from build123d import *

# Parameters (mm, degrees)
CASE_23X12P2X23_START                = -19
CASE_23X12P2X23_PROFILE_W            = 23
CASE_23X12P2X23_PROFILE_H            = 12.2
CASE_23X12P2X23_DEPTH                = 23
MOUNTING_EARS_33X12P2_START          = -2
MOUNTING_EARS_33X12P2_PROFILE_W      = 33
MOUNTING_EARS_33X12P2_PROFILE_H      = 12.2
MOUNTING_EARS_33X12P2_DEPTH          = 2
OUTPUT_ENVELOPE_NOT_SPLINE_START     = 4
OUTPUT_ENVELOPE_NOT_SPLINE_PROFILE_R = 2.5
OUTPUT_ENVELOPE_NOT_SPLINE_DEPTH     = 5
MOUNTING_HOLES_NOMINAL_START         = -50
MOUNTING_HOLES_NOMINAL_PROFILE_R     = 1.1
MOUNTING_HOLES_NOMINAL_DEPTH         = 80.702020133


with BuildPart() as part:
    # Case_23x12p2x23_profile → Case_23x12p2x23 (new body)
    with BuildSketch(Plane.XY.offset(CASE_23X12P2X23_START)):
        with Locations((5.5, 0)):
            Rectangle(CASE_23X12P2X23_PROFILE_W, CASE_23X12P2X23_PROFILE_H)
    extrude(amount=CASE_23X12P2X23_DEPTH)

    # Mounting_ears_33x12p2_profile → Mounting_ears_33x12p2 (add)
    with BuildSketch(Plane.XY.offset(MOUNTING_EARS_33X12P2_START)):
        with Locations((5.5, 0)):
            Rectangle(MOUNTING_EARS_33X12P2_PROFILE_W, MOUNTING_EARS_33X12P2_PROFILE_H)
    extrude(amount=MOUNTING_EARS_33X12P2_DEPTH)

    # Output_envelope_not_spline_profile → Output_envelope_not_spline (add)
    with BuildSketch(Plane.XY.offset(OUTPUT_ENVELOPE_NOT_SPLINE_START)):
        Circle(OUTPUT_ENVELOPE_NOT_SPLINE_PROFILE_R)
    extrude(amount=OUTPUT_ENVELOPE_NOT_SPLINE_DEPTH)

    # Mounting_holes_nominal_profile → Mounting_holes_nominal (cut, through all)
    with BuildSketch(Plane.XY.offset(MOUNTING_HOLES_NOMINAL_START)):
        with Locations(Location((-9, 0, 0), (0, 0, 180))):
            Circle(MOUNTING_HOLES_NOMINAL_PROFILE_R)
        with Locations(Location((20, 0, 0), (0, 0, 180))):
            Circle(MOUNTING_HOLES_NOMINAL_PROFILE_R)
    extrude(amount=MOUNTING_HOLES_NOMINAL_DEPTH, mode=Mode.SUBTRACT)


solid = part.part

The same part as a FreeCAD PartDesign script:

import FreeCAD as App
import Part
import Sketcher

V = App.Vector
Q = App.Units.Quantity

doc = App.newDocument("Part")
body = doc.addObject("PartDesign::Body", "Body")

sketch1 = doc.addObject("Sketcher::SketchObject", "Sketch")
body.addObject(sketch1)
sketch1.AttachmentSupport = (doc.XY_Plane, [""])
sketch1.MapMode = "FlatFace"
sketch1.AttachmentOffset = App.Placement(V(0, 0, -19), App.Rotation())
sketch1.addGeometry(Part.LineSegment(V(-6, 6, 0), V(-6, -6, 0)), False)
sketch1.addGeometry(Part.LineSegment(V(-6, -6, 0), V(17, -6, 0)), False)
sketch1.addGeometry(Part.LineSegment(V(17, -6, 0), V(17, 6, 0)), False)
sketch1.addGeometry(Part.LineSegment(V(17, 6, 0), V(-6, 6, 0)), False)
sketch1.addConstraint(Sketcher.Constraint("Coincident", 0, 2, 1, 1))
sketch1.addConstraint(Sketcher.Constraint("Coincident", 1, 2, 2, 1))
sketch1.addConstraint(Sketcher.Constraint("Coincident", 2, 2, 3, 1))
sketch1.addConstraint(Sketcher.Constraint("Coincident", 3, 2, 0, 1))
sketch1.addConstraint(Sketcher.Constraint("Vertical", 0))
sketch1.addConstraint(Sketcher.Constraint("Horizontal", 1))
sketch1.addConstraint(Sketcher.Constraint("Vertical", 2))
sketch1.addConstraint(Sketcher.Constraint("Horizontal", 3))
sketch1.addConstraint(Sketcher.Constraint("DistanceX", 1, 1, 1, 2, Q("23 mm")))
sketch1.addConstraint(Sketcher.Constraint("DistanceY", 0, 2, 0, 1, Q("12.2 mm")))
sketch1.addConstraint(Sketcher.Constraint("DistanceX", 0, 2, -1, 1, Q("6 mm")))
sketch1.addConstraint(Sketcher.Constraint("DistanceY", 0, 2, -1, 1, Q("6.1 mm")))
pad1 = doc.addObject("PartDesign::Pad", "Pad")
body.addObject(pad1)
pad1.Profile = sketch1
pad1.Length = 23

sketch2 = doc.addObject("Sketcher::SketchObject", "Sketch001")
body.addObject(sketch2)
sketch2.AttachmentSupport = (doc.XY_Plane, [""])
sketch2.MapMode = "FlatFace"
sketch2.AttachmentOffset = App.Placement(V(0, 0, -2), App.Rotation())
sketch2.addGeometry(Part.LineSegment(V(-11, 6, 0), V(-11, -6, 0)), False)
sketch2.addGeometry(Part.LineSegment(V(-11, -6, 0), V(22, -6, 0)), False)
sketch2.addGeometry(Part.LineSegment(V(22, -6, 0), V(22, 6, 0)), False)
sketch2.addGeometry(Part.LineSegment(V(22, 6, 0), V(-11, 6, 0)), False)
sketch2.addConstraint(Sketcher.Constraint("Coincident", 0, 2, 1, 1))
sketch2.addConstraint(Sketcher.Constraint("Coincident", 1, 2, 2, 1))
sketch2.addConstraint(Sketcher.Constraint("Coincident", 2, 2, 3, 1))
sketch2.addConstraint(Sketcher.Constraint("Coincident", 3, 2, 0, 1))
sketch2.addConstraint(Sketcher.Constraint("Vertical", 0))
sketch2.addConstraint(Sketcher.Constraint("Horizontal", 1))
sketch2.addConstraint(Sketcher.Constraint("Vertical", 2))
sketch2.addConstraint(Sketcher.Constraint("Horizontal", 3))
sketch2.addConstraint(Sketcher.Constraint("DistanceX", 1, 1, 1, 2, Q("33 mm")))
sketch2.addConstraint(Sketcher.Constraint("DistanceY", 0, 2, 0, 1, Q("12.2 mm")))
sketch2.addConstraint(Sketcher.Constraint("DistanceX", 0, 2, -1, 1, Q("11 mm")))
sketch2.addConstraint(Sketcher.Constraint("DistanceY", 0, 2, -1, 1, Q("6.1 mm")))
pad2 = doc.addObject("PartDesign::Pad", "Pad001")
body.addObject(pad2)
pad2.Profile = sketch2
pad2.Length = 2

sketch3 = doc.addObject("Sketcher::SketchObject", "Sketch002")
body.addObject(sketch3)
sketch3.AttachmentSupport = (doc.XY_Plane, [""])
sketch3.MapMode = "FlatFace"
sketch3.AttachmentOffset = App.Placement(V(0, 0, 4), App.Rotation())
sketch3.addGeometry(Part.Circle(V(0, 0, 0), V(0, 0, 1), 2.5), False)
sketch3.addConstraint(Sketcher.Constraint("Coincident", 0, 3, -1, 1))
sketch3.addConstraint(Sketcher.Constraint("Diameter", 0, Q("5 mm")))
pad3 = doc.addObject("PartDesign::Pad", "Pad002")
body.addObject(pad3)
pad3.Profile = sketch3
pad3.Length = 5

sketch4 = doc.addObject("Sketcher::SketchObject", "Sketch003")
body.addObject(sketch4)
sketch4.AttachmentSupport = (doc.XY_Plane, [""])
sketch4.MapMode = "FlatFace"
sketch4.AttachmentOffset = App.Placement(V(0, 0, -50), App.Rotation())
sketch4.addGeometry(Part.Circle(V(-9, 0, 0), V(0, 0, 1), 1.1), False)
sketch4.addGeometry(Part.Circle(V(20, 0, 0), V(0, 0, 1), 1.1), False)
sketch4.addConstraint(Sketcher.Constraint("Equal", 0, 1))
sketch4.addConstraint(Sketcher.Constraint("PointOnObject", 0, 3, -1))
sketch4.addConstraint(Sketcher.Constraint("PointOnObject", 1, 3, -1))
sketch4.addConstraint(Sketcher.Constraint("Diameter", 0, Q("2.2 mm")))
sketch4.addConstraint(Sketcher.Constraint("DistanceX", 0, 3, -1, 1, Q("9 mm")))
sketch4.addConstraint(Sketcher.Constraint("DistanceX", -1, 1, 1, 3, Q("20 mm")))
pocket1 = doc.addObject("PartDesign::Pocket", "Pocket")
body.addObject(pocket1)
pocket1.Profile = sketch4
pocket1.Type = "ThroughAll"
pocket1.Reversed = True

doc.recompute()
